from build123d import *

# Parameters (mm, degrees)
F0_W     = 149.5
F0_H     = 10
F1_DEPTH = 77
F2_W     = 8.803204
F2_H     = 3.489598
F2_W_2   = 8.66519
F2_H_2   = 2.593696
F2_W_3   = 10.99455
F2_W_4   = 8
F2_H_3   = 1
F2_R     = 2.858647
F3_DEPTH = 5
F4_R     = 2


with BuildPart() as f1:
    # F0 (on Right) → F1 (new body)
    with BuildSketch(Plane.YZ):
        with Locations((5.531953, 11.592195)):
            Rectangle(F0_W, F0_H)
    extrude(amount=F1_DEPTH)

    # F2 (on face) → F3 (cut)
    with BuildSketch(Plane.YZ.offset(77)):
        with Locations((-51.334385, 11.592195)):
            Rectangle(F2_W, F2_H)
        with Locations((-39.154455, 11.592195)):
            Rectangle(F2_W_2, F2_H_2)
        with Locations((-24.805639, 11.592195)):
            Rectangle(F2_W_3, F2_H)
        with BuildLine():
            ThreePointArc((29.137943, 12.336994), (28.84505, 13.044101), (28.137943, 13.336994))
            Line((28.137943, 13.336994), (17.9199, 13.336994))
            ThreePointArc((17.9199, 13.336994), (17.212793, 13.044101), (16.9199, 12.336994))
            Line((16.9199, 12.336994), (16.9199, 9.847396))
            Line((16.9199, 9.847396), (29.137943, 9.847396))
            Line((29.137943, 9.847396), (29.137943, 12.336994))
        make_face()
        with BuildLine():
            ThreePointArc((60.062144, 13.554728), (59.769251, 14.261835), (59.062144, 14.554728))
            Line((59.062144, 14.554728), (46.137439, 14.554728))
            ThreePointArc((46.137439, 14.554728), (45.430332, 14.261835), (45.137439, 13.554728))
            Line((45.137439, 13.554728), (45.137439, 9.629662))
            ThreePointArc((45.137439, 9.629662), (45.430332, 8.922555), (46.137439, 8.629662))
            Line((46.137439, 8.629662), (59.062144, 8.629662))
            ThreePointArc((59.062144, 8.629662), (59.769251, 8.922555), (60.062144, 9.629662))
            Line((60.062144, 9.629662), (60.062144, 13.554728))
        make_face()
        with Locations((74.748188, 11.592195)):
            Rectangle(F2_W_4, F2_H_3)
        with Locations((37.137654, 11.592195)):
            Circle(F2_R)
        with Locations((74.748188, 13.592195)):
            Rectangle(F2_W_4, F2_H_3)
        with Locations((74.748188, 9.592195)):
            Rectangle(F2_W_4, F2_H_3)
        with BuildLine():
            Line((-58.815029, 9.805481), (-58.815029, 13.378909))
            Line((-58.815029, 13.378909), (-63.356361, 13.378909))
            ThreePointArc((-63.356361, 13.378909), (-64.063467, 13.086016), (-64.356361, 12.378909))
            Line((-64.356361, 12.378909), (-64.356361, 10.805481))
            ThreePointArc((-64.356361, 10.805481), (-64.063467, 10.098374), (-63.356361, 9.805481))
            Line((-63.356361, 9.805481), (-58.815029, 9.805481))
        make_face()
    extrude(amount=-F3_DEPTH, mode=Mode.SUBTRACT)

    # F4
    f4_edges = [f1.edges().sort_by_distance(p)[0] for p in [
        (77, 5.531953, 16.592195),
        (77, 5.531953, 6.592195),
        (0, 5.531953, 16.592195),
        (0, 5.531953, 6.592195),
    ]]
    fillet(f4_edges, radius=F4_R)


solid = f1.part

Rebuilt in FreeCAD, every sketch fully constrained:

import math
import FreeCAD as App
import Part
import Sketcher
Q = App.Units.Quantity


def edges_at(feature, points):
    """Names of the edges that pass closest to the given points."""
    edges = feature.Shape.Edges
    near = lambda p: min(range(len(edges)), key=lambda i: edges[i].distToShape(Part.Vertex(*p))[0])
    return sorted({f"Edge{near(p) + 1}" for p in points})


def add_polygon(sketch, points):
    """Adds a closed chain of lines whose ends are joined by coincident constraints."""
    first, n = sketch.GeometryCount, len(points)
    for a, b in zip(points, points[1:] + points[:1]):
        sketch.addGeometry(Part.LineSegment(App.Vector(*a, 0), App.Vector(*b, 0)), False)
    for i in range(n):
        sketch.addConstraint(Sketcher.Constraint("Coincident", first + i, 2, first + (i + 1) % n, 1))

doc = App.newDocument("Part")
body = doc.addObject("PartDesign::Body", "Body")

# Sketch on YZ plane
sketch1 = body.newObject("Sketcher::SketchObject", "Sketch")
sketch1.AttachmentSupport = (doc.getObject("YZ_Plane"), [""])
sketch1.MapMode = "FlatFace"
add_polygon(sketch1, [(-69, 17), (-69, 7), (80, 7), (80, 17)])  # lines 0-3
sketch1.addConstraint([
    Sketcher.Constraint("Vertical", 0),
    Sketcher.Constraint("Horizontal", 1),
    Sketcher.Constraint("Vertical", 2),
    Sketcher.Constraint("Horizontal", 3),
    Sketcher.Constraint("DistanceY", 0, 2, 0, 1, Q("10 mm")),
    Sketcher.Constraint("DistanceX", 1, 1, 1, 2, Q("149.5 mm")),
    Sketcher.Constraint("DistanceX", 0, 2, -1, 1, Q("69.218047 mm")),
    Sketcher.Constraint("DistanceY", -1, 1, 0, 2, Q("6.592195 mm")),
])
pad1 = body.newObject("PartDesign::Pad", "Pad")
pad1.Profile = sketch1
pad1.Length = 77

# Sketch on YZ plane
sketch2 = body.newObject("Sketcher::SketchObject", "Sketch001")
sketch2.AttachmentSupport = (doc.getObject("YZ_Plane"), [""])
sketch2.MapMode = "FlatFace"
sketch2.AttachmentOffset = App.Placement(App.Vector(0, 0, 77), App.Rotation())
add_polygon(sketch2, [(-55.7, 13.3), (-55.7, 9.8), (-46.9, 9.8), (-46.9, 13.3)])  # lines 0-3
add_polygon(sketch2, [(-43.5, 12.9), (-43.5, 10.3), (-34.8, 10.3), (-34.8, 12.9)])  # lines 4-7
add_polygon(sketch2, [(-30.3, 13.3), (-30.3, 9.8), (-19.3, 9.8), (-19.3, 13.3)])  # lines 8-11
sketch2.addGeometry(Part.ArcOfCircle(Part.Circle(App.Vector(28.1, 12.3, 0), App.Vector(0, 0, 1), 1), math.radians(0), math.radians(90)), False)  # 12
sketch2.addGeometry(Part.LineSegment(App.Vector(28.1, 13.3, 0), App.Vector(17.9, 13.3, 0)), False)  # 13
sketch2.addGeometry(Part.ArcOfCircle(Part.Circle(App.Vector(17.9, 12.3, 0), App.Vector(0, 0, 1), 1), math.radians(90), math.radians(180)), False)  # 14
sketch2.addGeometry(Part.LineSegment(App.Vector(16.9, 12.3, 0), App.Vector(16.9, 9.8, 0)), False)  # 15
sketch2.addGeometry(Part.LineSegment(App.Vector(16.9, 9.8, 0), App.Vector(29.1, 9.8, 0)), False)  # 16
sketch2.addGeometry(Part.LineSegment(App.Vector(29.1, 9.8, 0), App.Vector(29.1, 12.3, 0)), False)  # 17
sketch2.addGeometry(Part.ArcOfCircle(Part.Circle(App.Vector(59.1, 13.6, 0), App.Vector(0, 0, 1), 1), math.radians(0), math.radians(90)), False)  # 18
sketch2.addGeometry(Part.LineSegment(App.Vector(59.1, 14.6, 0), App.Vector(46.1, 14.6, 0)), False)  # 19
sketch2.addGeometry(Part.ArcOfCircle(Part.Circle(App.Vector(46.1, 13.6, 0), App.Vector(0, 0, 1), 1), math.radians(90), math.radians(180)), False)  # 20
sketch2.addGeometry(Part.LineSegment(App.Vector(45.1, 13.6, 0), App.Vector(45.1, 9.6, 0)), False)  # 21
sketch2.addGeometry(Part.ArcOfCircle(Part.Circle(App.Vector(46.1, 9.6, 0), App.Vector(0, 0, 1), 1), math.radians(180), math.radians(270)), False)  # 22
sketch2.addGeometry(Part.LineSegment(App.Vector(46.1, 8.6, 0), App.Vector(59.1, 8.6, 0)), False)  # 23
sketch2.addGeometry(Part.ArcOfCircle(Part.Circle(App.Vector(59.1, 9.6, 0), App.Vector(0, 0, 1), 1), math.radians(-90), math.radians(0)), False)  # 24
sketch2.addGeometry(Part.LineSegment(App.Vector(60.1, 9.6, 0), App.Vector(60.1, 13.6, 0)), False)  # 25
add_polygon(sketch2, [(70.7, 12.1), (70.7, 11.1), (78.7, 11.1), (78.7, 12.1)])  # lines 26-29
sketch2.addGeometry(Part.Circle(App.Vector(37.1, 11.6, 0), App.Vector(0, 0, 1), 2.9), False)  # 30
add_polygon(sketch2, [(70.7, 14.1), (70.7, 13.1), (78.7, 13.1), (78.7, 14.1)])  # lines 31-34
add_polygon(sketch2, [(70.7, 10.1), (70.7, 9.1), (78.7, 9.1), (78.7, 10.1)])  # lines 35-38
sketch2.addGeometry(Part.LineSegment(App.Vector(-58.8, 9.8, 0), App.Vector(-58.8, 13.4, 0)), False)  # 39
sketch2.addGeometry(Part.LineSegment(App.Vector(-58.8, 13.4, 0), App.Vector(-63.4, 13.4, 0)), False)  # 40
sketch2.addGeometry(Part.ArcOfCircle(Part.Circle(App.Vector(-63.4, 12.4, 0), App.Vector(0, 0, 1), 1), math.radians(90), math.radians(180)), False)  # 41
sketch2.addGeometry(Part.LineSegment(App.Vector(-64.4, 12.4, 0), App.Vector(-64.4, 10.8, 0)), False)  # 42
sketch2.addGeometry(Part.ArcOfCircle(Part.Circle(App.Vector(-63.4, 10.8, 0), App.Vector(0, 0, 1), 1), math.radians(-180), math.radians(-90)), False)  # 43
sketch2.addGeometry(Part.LineSegment(App.Vector(-63.4, 9.8, 0), App.Vector(-58.8, 9.8, 0)), False)  # 44
sketch2.addConstraint([
    Sketcher.Constraint("Tangent", 12, 2, 13, 1),
    Sketcher.Constraint("Tangent", 13, 2, 14, 1),
    Sketcher.Constraint("Tangent", 14, 2, 15, 1),
    Sketcher.Constraint("Coincident", 15, 2, 16, 1),
    Sketcher.Constraint("Coincident", 16, 2, 17, 1),
    Sketcher.Constraint("Tangent", 17, 2, 12, 1),
    Sketcher.Constraint("Tangent", 18, 2, 19, 1),
    Sketcher.Constraint("Tangent", 19, 2, 20, 1),
    Sketcher.Constraint("Tangent", 20, 2, 21, 1),
    Sketcher.Constraint("Tangent", 21, 2, 22, 1),
    Sketcher.Constraint("Tangent", 22, 2, 23, 1),
    Sketcher.Constraint("Tangent", 23, 2, 24, 1),
    Sketcher.Constraint("Tangent", 24, 2, 25, 1),
    Sketcher.Constraint("Tangent", 25, 2, 18, 1),
    Sketcher.Constraint("Coincident", 39, 2, 40, 1),
    Sketcher.Constraint("Tangent", 40, 2, 41, 1),
    Sketcher.Constraint("Tangent", 41, 2, 42, 1),
    Sketcher.Constraint("Tangent", 42, 2, 43, 1),
    Sketcher.Constraint("Tangent", 43, 2, 44, 1),
    Sketcher.Constraint("Coincident", 44, 2, 39, 1),
    Sketcher.Constraint("Vertical", 0),
    Sketcher.Constraint("Horizontal", 1),
    Sketcher.Constraint("Vertical", 2),
    Sketcher.Constraint("Horizontal", 3),
    Sketcher.Constraint("Vertical", 4),
    Sketcher.Constraint("Horizontal", 5),
    Sketcher.Constraint("Vertical", 6),
    Sketcher.Constraint("Horizontal", 7),
    Sketcher.Constraint("Vertical", 8),
    Sketcher.Constraint("Horizontal", 9),
    Sketcher.Constraint("Vertical", 10),
    Sketcher.Constraint("Horizontal", 11),
    Sketcher.Constraint("Horizontal", 13),
    Sketcher.Constraint("Vertical", 15),
    Sketcher.Constraint("Horizontal", 16),
    Sketcher.Constraint("Vertical", 17),
    Sketcher.Constraint("Horizontal", 19),
    Sketcher.Constraint("Vertical", 21),
    Sketcher.Constraint("Horizontal", 23),
    Sketcher.Constraint("Vertical", 25),
    Sketcher.Constraint("Vertical", 26),
    Sketcher.Constraint("Horizontal", 27),
    Sketcher.Constraint("Vertical", 28),
    Sketcher.Constraint("Horizontal", 29),
    Sketcher.Constraint("Vertical", 31),
    Sketcher.Constraint("Horizontal", 32),
    Sketcher.Constraint("Vertical", 33),
    Sketcher.Constraint("Horizontal", 34),
    Sketcher.Constraint("Vertical", 35),
    Sketcher.Constraint("Horizontal", 36),
    Sketcher.Constraint("Vertical", 37),
    Sketcher.Constraint("Horizontal", 38),
    Sketcher.Constraint("Vertical", 39),
    Sketcher.Constraint("Horizontal", 40),
    Sketcher.Constraint("Vertical", 42),
    Sketcher.Constraint("Horizontal", 44),
    Sketcher.Constraint("Equal", 12, 14),
    Sketcher.Constraint("Equal", 14, 18),
    Sketcher.Constraint("Equal", 18, 20),
    Sketcher.Constraint("Equal", 20, 22),
    Sketcher.Constraint("Equal", 22, 24),
    Sketcher.Constraint("Equal", 24, 41),
    Sketcher.Constraint("Equal", 41, 43),
    Sketcher.Constraint("Horizontal", 1, 2, 8, 2),
    Sketcher.Constraint("Horizontal", 3, 2, 10, 2),
    Sketcher.Constraint("Horizontal", 11, 2, 12, 2),
    Sketcher.Constraint("Horizontal", 9, 2, 15, 2),
    Sketcher.Constraint("Vertical", 29, 2, 31, 2),
    Sketcher.Constraint("Vertical", 28, 2, 32, 2),
    Sketcher.Constraint("Vertical", 34, 2, 35, 2),
    Sketcher.Constraint("Vertical", 33, 2, 36, 2),
    Sketcher.Constraint("Equal", 28, 31),
    Sketcher.Constraint("Equal", 33, 35),
    Sketcher.Constraint("Radius", 12, Q("0.999999 mm")),
    Sketcher.Constraint("DistanceX", 27, 1, 27, 2, Q("8 mm")),
    Sketcher.Constraint("DistanceY", 26, 2, 26, 1, Q("1 mm")),
    Sketcher.Constraint("DistanceY", 29, 2, 31, 2, Q("1 mm")),
    Sketcher.Constraint("DistanceY", 35, 2, 26, 2, Q("2 mm")),
    Sketcher.Constraint("Diameter", 30, Q("5.717294 mm")),
    Sketcher.Constraint("DistanceY", 0, 2, 0, 1, Q("3.489598 mm")),
    Sketcher.Constraint("DistanceX", 5, 1, 5, 2, Q("8.66519 mm")),
    Sketcher.Constraint("DistanceX", 9, 1, 9, 2, Q("10.99455 mm")),
    Sketcher.Constraint("DistanceX", 40, 2, 40, 1, Q("4.541332 mm")),
    Sketcher.Constraint("DistanceX", -1, 1, 14, 3, Q("17.919899 mm")),
    Sketcher.Constraint("DistanceX", 12, 3, 18, 3, Q("30.924201 mm")),
    Sketcher.Constraint("DistanceY", 30, 3, 12, 3, Q("0.7448 mm")),
    Sketcher.Constraint("DistanceX", 41, 3, 20, 3, Q("109.493798 mm")),
    Sketcher.Constraint("DistanceX", 1, 1, 1, 2, Q("8.803204 mm")),
    Sketcher.Constraint("DistanceX", 13, 2, 13, 1, Q("10.218043 mm")),
    Sketcher.Constraint("DistanceX", 19, 2, 19, 1, Q("12.924705 mm")),
    Sketcher.Constraint("DistanceY", 4, 2, 4, 1, Q("2.593696 mm")),
    Sketcher.Constraint("DistanceY", 21, 2, 21, 1, Q("3.925066 mm")),
    Sketcher.Constraint("DistanceY", 39, 1, 39, 2, Q("3.573428 mm")),
    Sketcher.Constraint("DistanceY", -1, 1, 18, 3, Q("13.554729 mm")),
    Sketcher.Constraint("DistanceY", -1, 1, 41, 3, Q("12.378908 mm")),
    Sketcher.Constraint("DistanceX", 4, 2, -1, 1, Q("43.48705 mm")),
    Sketcher.Constraint("DistanceX", -1, 1, 26, 2, Q("70.748188 mm")),
    Sketcher.Constraint("DistanceX", 12, 3, 30, 3, Q("8.99971 mm")),
    Sketcher.Constraint("DistanceX", 0, 2, 12, 3, Q("83.873931 mm")),
    Sketcher.Constraint("DistanceY", 1, 2, 4, 2, Q("0.447951 mm")),
    Sketcher.Constraint("DistanceX", 1, 2, 8, 2, Q("16.629869 mm")),
    Sketcher.Constraint("DistanceY", -1, 1, 12, 3, Q("12.336995 mm")),
    Sketcher.Constraint("DistanceY", -1, 1, 26, 2, Q("11.092195 mm")),
])
pocket1 = body.newObject("PartDesign::Pocket", "Pocket")
pocket1.Profile = sketch2
pocket1.Length = 5
doc.recompute()

fillet = body.newObject("PartDesign::Fillet", "Fillet")
fillet.Base = (pocket1, edges_at(pocket1, [
    (77, 5.532, 16.592),
    (77, 5.532, 6.592),
    (0, 5.532, 16.592),
    (0, 5.532, 6.592),
]))
fillet.Radius = 2

doc.recompute()
